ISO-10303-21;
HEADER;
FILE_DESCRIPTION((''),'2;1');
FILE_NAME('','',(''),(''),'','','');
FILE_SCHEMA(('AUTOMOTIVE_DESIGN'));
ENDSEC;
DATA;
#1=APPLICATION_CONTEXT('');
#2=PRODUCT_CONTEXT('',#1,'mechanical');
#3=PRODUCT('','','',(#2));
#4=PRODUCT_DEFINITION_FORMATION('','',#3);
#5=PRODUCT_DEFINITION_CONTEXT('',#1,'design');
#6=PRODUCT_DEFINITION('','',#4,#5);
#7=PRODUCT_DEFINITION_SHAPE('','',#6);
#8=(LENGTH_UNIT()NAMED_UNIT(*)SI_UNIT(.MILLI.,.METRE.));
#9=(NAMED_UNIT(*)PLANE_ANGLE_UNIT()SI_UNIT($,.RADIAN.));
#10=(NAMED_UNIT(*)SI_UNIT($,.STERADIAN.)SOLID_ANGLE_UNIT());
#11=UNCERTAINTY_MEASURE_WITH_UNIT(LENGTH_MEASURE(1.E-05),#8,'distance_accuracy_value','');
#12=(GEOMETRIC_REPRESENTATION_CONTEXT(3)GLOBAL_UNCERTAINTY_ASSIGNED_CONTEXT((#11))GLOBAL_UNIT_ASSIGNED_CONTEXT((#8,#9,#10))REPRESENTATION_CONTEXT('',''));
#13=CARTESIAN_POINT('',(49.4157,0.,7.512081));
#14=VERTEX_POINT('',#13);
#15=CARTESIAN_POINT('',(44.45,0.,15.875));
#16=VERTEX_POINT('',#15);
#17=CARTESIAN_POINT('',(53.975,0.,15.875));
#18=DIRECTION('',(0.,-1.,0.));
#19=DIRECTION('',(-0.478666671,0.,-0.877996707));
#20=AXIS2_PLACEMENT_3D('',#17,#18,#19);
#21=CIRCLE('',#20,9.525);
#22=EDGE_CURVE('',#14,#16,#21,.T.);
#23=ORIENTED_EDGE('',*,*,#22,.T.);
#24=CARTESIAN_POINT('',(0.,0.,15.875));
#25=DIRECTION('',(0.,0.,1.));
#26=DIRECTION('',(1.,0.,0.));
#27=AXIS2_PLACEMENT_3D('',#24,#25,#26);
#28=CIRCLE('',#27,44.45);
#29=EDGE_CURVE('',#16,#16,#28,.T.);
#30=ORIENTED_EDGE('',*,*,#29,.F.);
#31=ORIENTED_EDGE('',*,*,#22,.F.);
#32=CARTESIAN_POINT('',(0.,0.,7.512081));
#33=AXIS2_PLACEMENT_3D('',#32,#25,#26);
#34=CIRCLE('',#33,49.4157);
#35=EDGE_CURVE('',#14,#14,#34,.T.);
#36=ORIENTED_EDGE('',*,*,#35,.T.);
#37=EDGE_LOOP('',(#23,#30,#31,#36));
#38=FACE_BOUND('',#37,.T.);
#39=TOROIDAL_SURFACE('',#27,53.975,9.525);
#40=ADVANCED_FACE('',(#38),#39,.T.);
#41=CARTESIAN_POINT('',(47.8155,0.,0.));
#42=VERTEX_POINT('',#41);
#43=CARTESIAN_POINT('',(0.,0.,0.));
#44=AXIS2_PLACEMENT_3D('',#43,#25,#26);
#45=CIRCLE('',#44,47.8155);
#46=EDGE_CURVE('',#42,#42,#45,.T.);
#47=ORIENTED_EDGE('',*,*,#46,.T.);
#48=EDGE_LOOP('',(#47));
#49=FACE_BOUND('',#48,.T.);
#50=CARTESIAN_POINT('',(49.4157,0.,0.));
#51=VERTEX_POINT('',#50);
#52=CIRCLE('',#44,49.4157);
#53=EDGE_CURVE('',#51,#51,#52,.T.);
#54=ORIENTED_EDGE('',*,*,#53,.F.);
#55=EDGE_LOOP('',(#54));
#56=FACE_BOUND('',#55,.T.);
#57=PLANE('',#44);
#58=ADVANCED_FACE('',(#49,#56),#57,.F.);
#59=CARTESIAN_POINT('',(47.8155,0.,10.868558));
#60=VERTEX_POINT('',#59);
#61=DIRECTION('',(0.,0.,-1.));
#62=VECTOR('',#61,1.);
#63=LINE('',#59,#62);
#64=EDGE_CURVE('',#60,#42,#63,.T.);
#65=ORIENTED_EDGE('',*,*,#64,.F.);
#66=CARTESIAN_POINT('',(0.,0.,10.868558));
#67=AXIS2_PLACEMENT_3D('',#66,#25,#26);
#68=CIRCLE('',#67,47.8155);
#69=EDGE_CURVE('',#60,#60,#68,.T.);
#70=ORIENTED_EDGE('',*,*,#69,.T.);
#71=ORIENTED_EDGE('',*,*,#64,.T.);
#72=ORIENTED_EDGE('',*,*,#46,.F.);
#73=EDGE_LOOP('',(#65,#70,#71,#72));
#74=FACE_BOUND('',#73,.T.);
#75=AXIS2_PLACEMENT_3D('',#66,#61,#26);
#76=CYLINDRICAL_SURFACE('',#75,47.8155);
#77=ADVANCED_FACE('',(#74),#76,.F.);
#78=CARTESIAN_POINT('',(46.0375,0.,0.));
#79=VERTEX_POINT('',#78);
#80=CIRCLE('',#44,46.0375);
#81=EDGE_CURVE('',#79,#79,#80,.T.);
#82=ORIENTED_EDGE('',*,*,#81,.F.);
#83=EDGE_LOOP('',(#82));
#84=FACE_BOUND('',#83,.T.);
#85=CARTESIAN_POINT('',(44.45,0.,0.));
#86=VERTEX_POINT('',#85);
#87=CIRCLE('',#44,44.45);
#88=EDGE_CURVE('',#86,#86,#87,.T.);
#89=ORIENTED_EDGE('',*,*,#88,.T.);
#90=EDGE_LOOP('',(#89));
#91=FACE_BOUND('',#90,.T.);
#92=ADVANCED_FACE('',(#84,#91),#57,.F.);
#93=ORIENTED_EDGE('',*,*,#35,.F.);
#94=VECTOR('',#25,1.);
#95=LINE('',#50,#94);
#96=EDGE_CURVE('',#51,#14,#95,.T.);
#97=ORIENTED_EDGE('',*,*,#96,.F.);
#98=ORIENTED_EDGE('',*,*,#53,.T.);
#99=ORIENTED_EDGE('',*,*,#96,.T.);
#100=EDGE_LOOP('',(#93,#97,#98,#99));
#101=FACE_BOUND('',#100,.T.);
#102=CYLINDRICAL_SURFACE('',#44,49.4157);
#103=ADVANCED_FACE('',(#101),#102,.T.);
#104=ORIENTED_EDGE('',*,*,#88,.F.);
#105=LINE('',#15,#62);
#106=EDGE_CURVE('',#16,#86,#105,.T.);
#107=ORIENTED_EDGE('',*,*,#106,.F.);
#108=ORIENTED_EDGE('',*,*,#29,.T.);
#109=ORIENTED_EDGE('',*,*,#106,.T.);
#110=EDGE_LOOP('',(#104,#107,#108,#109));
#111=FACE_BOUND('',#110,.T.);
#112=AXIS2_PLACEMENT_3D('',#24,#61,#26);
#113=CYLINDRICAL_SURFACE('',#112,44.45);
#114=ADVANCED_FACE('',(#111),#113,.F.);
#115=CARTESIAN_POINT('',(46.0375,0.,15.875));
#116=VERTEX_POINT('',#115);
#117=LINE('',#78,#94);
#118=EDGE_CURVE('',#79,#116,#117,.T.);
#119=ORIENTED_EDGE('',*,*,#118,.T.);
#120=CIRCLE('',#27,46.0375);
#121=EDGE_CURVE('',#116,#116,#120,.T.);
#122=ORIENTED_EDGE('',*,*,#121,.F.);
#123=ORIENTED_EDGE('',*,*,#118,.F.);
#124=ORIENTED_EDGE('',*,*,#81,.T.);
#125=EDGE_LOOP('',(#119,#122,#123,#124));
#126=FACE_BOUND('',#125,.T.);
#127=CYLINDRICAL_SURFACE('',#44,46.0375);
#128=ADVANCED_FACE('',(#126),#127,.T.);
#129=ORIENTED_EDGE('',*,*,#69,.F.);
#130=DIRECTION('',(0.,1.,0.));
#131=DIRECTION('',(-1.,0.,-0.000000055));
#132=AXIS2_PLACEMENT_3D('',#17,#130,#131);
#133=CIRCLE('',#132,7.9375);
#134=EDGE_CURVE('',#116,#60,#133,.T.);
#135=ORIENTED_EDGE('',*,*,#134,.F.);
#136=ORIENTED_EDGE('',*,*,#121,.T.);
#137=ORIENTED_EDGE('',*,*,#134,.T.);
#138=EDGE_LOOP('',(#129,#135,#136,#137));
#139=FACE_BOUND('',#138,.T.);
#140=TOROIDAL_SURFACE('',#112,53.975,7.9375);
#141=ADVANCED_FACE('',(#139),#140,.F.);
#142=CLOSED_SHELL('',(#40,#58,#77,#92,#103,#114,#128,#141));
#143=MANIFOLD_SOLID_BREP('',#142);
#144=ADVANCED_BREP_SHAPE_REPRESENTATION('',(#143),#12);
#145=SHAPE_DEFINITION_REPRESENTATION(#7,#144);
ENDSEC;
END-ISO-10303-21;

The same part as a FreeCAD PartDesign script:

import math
import FreeCAD as App
import Part
import Sketcher
from FreeCAD import Vector
Q = App.Units.Quantity

doc = App.newDocument("Part")
params = doc.addObject("Spreadsheet::Sheet", "Params")
for row, (alias, value) in enumerate([
    ("sketch1_radius", "0.3125 in"),
    ("sketch1_radius2", "0.375 in"),
    ("sketch1_width", "0.063 in"),
    ("sketch1_height", "0.625 in"),
    ("revolution_angle", "360 deg"),
], start=1):
    params.set(f"A{row}", alias)
    params.set(f"B{row}", "=" + value)
    params.setAlias(f"B{row}", alias)

body = doc.addObject("PartDesign::Body", "Body")

sketch1 = body.newObject("Sketcher::SketchObject", "Sketch")
sketch1.AttachmentSupport = (doc.getObject("XZ_Plane"), [""])
sketch1.MapMode = "FlatFace"
sketch1.addGeometry(Part.ArcOfCircle(Part.Circle(Vector(53.975, 15.875, 0), Vector(0, 0, 1), 7.9375), math.radians(-140.895784), math.radians(180.000003)), False)
sketch1.addGeometry(Part.LineSegment(Vector(47.8155, 10.868558, 0), Vector(47.8155, 0, 0)), False)
sketch1.addGeometry(Part.LineSegment(Vector(47.8155, 0, 0), Vector(49.4157, 0, 0)), False)
sketch1.addGeometry(Part.LineSegment(Vector(49.4157, 0, 0), Vector(49.4157, 7.512081, 0)), False)
sketch1.addGeometry(Part.ArcOfCircle(Part.Circle(Vector(53.975, 15.875, 0), Vector(0, 0, 1), 9.525), math.radians(-118.598356), math.radians(179.999998)), False)
sketch1.addGeometry(Part.LineSegment(Vector(44.45, 15.875, 0), Vector(44.45, 0, 0)), False)
sketch1.addGeometry(Part.LineSegment(Vector(44.45, 0, 0), Vector(46.0375, 0, 0)), False)
sketch1.addGeometry(Part.LineSegment(Vector(46.0375, 0, 0), Vector(46.0375, 15.875, 0)), False)
sketch1.addConstraint(Sketcher.Constraint("Coincident", 0, 1, 1, 1))
sketch1.addConstraint(Sketcher.Constraint("Coincident", 1, 2, 2, 1))
sketch1.addConstraint(Sketcher.Constraint("Coincident", 2, 2, 3, 1))
sketch1.addConstraint(Sketcher.Constraint("Coincident", 3, 2, 4, 1))
sketch1.addConstraint(Sketcher.Constraint("Tangent", 4, 2, 5, 1))
sketch1.addConstraint(Sketcher.Constraint("Coincident", 5, 2, 6, 1))
sketch1.addConstraint(Sketcher.Constraint("Coincident", 6, 2, 7, 1))
sketch1.addConstraint(Sketcher.Constraint("Tangent", 7, 2, 0, 2))
sketch1.addConstraint(Sketcher.Constraint("Vertical", 1))
sketch1.addConstraint(Sketcher.Constraint("Horizontal", 2))
sketch1.addConstraint(Sketcher.Constraint("Vertical", 3))
sketch1.addConstraint(Sketcher.Constraint("Vertical", 5))
sketch1.addConstraint(Sketcher.Constraint("Horizontal", 6))
sketch1.addConstraint(Sketcher.Constraint("Vertical", 7))
sketch1.addConstraint(Sketcher.Constraint("Coincident", 4, 3, 0, 3))
sketch1.addConstraint(Sketcher.Constraint("PointOnObject", 1, 2, -1))
sketch1.addConstraint(Sketcher.Constraint("PointOnObject", 5, 2, -1))
sketch1.addConstraint(Sketcher.Constraint("Radius", 0, Q("0.3125 in")))
sketch1.addConstraint(Sketcher.Constraint("Radius", 4, Q("0.375 in")))
sketch1.addConstraint(Sketcher.Constraint("DistanceX", 2, 1, 2, 2, Q("0.063 in")))
sketch1.addConstraint(Sketcher.Constraint("DistanceY", 5, 2, 5, 1, Q("0.625 in")))
sketch1.addConstraint(Sketcher.Constraint("DistanceX", -1, 1, 4, 2, Q("1.75 in")))
sketch1.addConstraint(Sketcher.Constraint("DistanceX", 6, 2, 1, 2, Q("0.07 in")))
sketch1.setExpression("Constraints[17]", "Params.sketch1_radius")
sketch1.setExpression("Constraints[18]", "Params.sketch1_radius2")
sketch1.setExpression("Constraints[19]", "Params.sketch1_width")
sketch1.setExpression("Constraints[20]", "Params.sketch1_height")
revolution = body.newObject("PartDesign::Revolution", "Revolution")
revolution.Profile = sketch1
revolution.ReferenceAxis = (sketch1, ["V_Axis"])
revolution.setExpression("Angle", "Params.revolution_angle")

doc.recompute()
